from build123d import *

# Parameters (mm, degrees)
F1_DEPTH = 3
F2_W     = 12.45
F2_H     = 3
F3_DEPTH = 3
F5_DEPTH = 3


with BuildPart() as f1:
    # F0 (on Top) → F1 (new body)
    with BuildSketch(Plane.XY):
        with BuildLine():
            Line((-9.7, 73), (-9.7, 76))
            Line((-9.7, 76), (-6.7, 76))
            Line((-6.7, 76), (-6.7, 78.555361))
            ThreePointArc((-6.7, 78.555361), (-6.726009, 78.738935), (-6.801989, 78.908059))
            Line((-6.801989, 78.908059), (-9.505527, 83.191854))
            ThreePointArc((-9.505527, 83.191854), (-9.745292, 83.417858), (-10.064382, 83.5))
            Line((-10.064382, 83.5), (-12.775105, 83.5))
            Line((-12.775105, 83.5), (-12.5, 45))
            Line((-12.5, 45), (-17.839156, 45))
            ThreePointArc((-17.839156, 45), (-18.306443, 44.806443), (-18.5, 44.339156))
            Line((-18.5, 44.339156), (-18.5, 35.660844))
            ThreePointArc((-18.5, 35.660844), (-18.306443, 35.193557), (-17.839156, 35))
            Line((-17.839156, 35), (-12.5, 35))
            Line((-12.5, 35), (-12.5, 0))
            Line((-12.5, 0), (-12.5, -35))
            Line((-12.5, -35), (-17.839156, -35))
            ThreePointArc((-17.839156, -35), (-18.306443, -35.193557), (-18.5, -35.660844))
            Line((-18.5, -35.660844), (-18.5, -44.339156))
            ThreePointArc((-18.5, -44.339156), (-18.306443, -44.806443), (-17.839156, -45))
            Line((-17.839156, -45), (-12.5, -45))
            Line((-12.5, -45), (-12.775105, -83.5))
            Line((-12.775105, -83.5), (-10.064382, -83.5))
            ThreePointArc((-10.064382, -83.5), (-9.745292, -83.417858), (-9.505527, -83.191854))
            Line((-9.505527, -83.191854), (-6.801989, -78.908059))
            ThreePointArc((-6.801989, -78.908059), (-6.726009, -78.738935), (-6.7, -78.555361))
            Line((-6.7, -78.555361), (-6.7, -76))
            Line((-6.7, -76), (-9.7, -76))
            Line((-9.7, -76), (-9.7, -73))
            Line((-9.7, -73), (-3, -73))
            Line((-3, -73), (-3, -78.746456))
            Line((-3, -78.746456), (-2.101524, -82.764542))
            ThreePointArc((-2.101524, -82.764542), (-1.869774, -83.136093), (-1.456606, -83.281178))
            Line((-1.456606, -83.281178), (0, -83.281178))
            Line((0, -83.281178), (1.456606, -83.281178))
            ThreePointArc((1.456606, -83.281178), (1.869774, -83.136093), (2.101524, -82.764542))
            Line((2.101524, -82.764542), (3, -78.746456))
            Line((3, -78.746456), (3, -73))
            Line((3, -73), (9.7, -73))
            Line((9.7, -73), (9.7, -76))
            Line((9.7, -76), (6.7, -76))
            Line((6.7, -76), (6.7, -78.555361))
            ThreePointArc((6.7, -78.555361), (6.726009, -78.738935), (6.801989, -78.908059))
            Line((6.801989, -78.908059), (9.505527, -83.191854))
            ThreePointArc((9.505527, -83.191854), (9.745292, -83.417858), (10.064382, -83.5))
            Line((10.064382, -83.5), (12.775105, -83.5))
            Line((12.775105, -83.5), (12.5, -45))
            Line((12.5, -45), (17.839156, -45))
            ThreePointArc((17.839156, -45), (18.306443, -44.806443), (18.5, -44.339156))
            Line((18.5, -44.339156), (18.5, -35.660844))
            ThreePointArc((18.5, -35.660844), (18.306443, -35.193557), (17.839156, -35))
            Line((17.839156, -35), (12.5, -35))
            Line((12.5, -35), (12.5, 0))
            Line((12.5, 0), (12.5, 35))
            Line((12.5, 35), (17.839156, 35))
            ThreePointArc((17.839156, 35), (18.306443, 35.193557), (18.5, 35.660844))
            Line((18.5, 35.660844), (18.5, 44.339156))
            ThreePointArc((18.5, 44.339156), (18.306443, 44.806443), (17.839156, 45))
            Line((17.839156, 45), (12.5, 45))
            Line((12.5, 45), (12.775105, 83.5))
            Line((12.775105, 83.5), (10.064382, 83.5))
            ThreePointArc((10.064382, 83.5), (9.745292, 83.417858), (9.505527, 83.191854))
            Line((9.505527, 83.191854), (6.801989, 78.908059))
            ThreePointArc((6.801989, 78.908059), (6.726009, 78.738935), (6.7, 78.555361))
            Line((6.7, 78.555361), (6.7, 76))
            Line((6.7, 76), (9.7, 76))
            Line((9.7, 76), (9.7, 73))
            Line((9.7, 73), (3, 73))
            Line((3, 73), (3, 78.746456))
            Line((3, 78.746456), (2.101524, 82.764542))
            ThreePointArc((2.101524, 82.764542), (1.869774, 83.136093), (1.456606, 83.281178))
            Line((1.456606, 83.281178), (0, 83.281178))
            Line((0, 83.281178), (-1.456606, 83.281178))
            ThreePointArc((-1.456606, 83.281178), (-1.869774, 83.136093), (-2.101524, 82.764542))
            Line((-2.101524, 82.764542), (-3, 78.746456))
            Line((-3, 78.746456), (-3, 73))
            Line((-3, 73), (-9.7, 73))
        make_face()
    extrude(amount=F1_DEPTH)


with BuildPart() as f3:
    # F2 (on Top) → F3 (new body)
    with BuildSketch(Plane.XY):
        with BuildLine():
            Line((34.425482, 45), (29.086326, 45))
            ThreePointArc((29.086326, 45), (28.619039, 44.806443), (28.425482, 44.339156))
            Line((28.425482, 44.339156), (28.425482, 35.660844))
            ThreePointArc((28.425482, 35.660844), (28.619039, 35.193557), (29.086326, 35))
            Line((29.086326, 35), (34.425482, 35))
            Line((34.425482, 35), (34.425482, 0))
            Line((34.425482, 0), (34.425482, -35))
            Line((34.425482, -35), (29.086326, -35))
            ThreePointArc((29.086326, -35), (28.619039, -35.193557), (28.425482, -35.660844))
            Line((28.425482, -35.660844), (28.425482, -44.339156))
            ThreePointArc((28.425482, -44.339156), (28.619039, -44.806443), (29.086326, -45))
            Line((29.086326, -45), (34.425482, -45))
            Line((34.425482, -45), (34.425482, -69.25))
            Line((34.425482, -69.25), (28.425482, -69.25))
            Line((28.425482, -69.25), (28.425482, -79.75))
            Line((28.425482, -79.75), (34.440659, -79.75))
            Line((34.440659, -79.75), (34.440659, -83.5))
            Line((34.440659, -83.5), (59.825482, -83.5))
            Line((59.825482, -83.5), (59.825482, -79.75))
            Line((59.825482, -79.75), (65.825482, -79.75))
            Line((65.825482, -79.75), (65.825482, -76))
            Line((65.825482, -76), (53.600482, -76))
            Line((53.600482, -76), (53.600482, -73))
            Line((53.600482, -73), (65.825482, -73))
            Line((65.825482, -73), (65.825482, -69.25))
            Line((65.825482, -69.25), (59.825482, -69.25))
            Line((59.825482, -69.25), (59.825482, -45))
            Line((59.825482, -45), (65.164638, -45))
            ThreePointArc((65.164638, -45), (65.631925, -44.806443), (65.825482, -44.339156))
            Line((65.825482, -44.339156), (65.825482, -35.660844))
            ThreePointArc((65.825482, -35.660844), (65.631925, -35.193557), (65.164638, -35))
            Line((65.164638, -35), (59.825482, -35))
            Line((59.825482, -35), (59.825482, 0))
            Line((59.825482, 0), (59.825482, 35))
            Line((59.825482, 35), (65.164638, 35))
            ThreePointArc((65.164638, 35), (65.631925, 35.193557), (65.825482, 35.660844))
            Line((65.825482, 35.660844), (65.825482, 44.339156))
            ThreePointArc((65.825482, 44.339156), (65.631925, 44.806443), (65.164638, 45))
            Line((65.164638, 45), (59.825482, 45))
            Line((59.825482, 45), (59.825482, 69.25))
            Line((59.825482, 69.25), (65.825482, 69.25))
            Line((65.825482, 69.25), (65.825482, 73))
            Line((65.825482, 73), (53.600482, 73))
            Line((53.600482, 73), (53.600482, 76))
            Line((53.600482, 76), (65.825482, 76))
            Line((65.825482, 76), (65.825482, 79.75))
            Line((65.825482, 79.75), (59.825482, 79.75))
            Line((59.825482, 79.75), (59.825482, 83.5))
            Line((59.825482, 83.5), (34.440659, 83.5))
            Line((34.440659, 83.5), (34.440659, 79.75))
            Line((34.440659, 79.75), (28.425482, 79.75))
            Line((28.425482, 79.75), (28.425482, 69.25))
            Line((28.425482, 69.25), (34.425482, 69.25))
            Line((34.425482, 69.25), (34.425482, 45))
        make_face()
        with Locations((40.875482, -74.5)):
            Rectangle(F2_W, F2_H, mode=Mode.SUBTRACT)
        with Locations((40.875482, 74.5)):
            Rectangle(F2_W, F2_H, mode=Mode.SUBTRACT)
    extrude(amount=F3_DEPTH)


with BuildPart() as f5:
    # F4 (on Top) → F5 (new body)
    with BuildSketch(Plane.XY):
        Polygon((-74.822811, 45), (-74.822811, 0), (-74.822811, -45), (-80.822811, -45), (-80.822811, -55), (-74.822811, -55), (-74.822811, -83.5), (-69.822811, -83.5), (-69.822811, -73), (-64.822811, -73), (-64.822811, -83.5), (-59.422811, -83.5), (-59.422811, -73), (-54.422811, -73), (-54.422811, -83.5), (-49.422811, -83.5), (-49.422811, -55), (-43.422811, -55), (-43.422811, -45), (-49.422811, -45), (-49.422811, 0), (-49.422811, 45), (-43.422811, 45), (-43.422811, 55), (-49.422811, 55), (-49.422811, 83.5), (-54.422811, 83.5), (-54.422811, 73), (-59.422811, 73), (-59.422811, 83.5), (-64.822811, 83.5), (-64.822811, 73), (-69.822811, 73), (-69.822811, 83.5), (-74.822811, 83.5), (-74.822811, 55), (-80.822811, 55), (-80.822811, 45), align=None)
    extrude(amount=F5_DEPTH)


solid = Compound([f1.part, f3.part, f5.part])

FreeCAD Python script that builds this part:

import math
import FreeCAD as App
import Part
import Sketcher

V = App.Vector


def add_polygon(sketch, points):
    """Adds a closed chain of lines whose ends are joined by coincident constraints."""
    first, n = sketch.GeometryCount, len(points)
    for a, b in zip(points, points[1:] + points[:1]):
        sketch.addGeometry(Part.LineSegment(App.Vector(*a, 0), App.Vector(*b, 0)), False)
    for i in range(n):
        sketch.addConstraint(Sketcher.Constraint("Coincident", first + i, 2, first + (i + 1) % n, 1))

doc = App.newDocument("Part")
body = doc.addObject("PartDesign::Body", "Body")

sketch1 = body.newObject("Sketcher::SketchObject", "Sketch")
sketch1.AttachmentSupport = (doc.getObject("XY_Plane"), [""])
sketch1.MapMode = "FlatFace"
sketch1.addGeometry(Part.LineSegment(V(-9.7, 73, 0), V(-9.7, 76, 0)), False)
sketch1.addGeometry(Part.LineSegment(V(-9.7, 76, 0), V(-6.7, 76, 0)), False)
sketch1.addGeometry(Part.LineSegment(V(-6.7, 76, 0), V(-6.7, 78.56, 0)), False)
sketch1.addGeometry(Part.ArcOfCircle(Part.Circle(V(-7.36, 78.56, 0), V(0, 0, 1), 0.66), math.radians(0), math.radians(32)), False)
sketch1.addGeometry(Part.LineSegment(V(-6.8, 78.91, 0), V(-9.51, 83.19, 0)), False)
sketch1.addGeometry(Part.ArcOfCircle(Part.Circle(V(-10.06, 82.84, 0), V(0, 0, 1), 0.66), math.radians(32), math.radians(90)), False)
sketch1.addGeometry(Part.LineSegment(V(-10.06, 83.5, 0), V(-12.78, 83.5, 0)), False)
sketch1.addGeometry(Part.LineSegment(V(-12.78, 83.5, 0), V(-12.5, 45, 0)), False)
sketch1.addGeometry(Part.LineSegment(V(-12.5, 45, 0), V(-17.84, 45, 0)), False)
sketch1.addGeometry(Part.ArcOfCircle(Part.Circle(V(-17.84, 44.34, 0), V(0, 0, 1), 0.66), math.radians(90), math.radians(180)), False)
sketch1.addGeometry(Part.LineSegment(V(-18.5, 44.34, 0), V(-18.5, 35.66, 0)), False)
sketch1.addGeometry(Part.ArcOfCircle(Part.Circle(V(-17.84, 35.66, 0), V(0, 0, 1), 0.66), math.radians(-180), math.radians(-90)), False)
sketch1.addGeometry(Part.LineSegment(V(-17.84, 35, 0), V(-12.5, 35, 0)), False)
sketch1.addGeometry(Part.LineSegment(V(-12.5, 35, 0), V(-12.5, -35, 0)), False)
sketch1.addGeometry(Part.LineSegment(V(-12.5, -35, 0), V(-17.84, -35, 0)), False)
sketch1.addGeometry(Part.ArcOfCircle(Part.Circle(V(-17.84, -35.66, 0), V(0, 0, 1), 0.66), math.radians(90), math.radians(180)), False)
sketch1.addGeometry(Part.LineSegment(V(-18.5, -35.66, 0), V(-18.5, -44.34, 0)), False)
sketch1.addGeometry(Part.ArcOfCircle(Part.Circle(V(-17.84, -44.34, 0), V(0, 0, 1), 0.66), math.radians(-180), math.radians(-90)), False)
sketch1.addGeometry(Part.LineSegment(V(-17.84, -45, 0), V(-12.5, -45, 0)), False)
sketch1.addGeometry(Part.LineSegment(V(-12.5, -45, 0), V(-12.78, -83.5, 0)), False)
sketch1.addGeometry(Part.LineSegment(V(-12.78, -83.5, 0), V(-10.06, -83.5, 0)), False)
sketch1.addGeometry(Part.ArcOfCircle(Part.Circle(V(-10.06, -82.84, 0), V(0, 0, 1), 0.66), math.radians(-90), math.radians(-32)), False)
sketch1.addGeometry(Part.LineSegment(V(-9.51, -83.19, 0), V(-6.8, -78.91, 0)), False)
sketch1.addGeometry(Part.ArcOfCircle(Part.Circle(V(-7.36, -78.56, 0), V(0, 0, 1), 0.66), math.radians(-32), math.radians(0)), False)
sketch1.addGeometry(Part.LineSegment(V(-6.7, -78.56, 0), V(-6.7, -76, 0)), False)
sketch1.addGeometry(Part.LineSegment(V(-6.7, -76, 0), V(-9.7, -76, 0)), False)
sketch1.addGeometry(Part.LineSegment(V(-9.7, -76, 0), V(-9.7, -73, 0)), False)
sketch1.addGeometry(Part.LineSegment(V(-9.7, -73, 0), V(-3, -73, 0)), False)
sketch1.addGeometry(Part.LineSegment(V(-3, -73, 0), V(-3, -78.75, 0)), False)
sketch1.addGeometry(Part.LineSegment(V(-3, -78.75, 0), V(-2.1, -82.76, 0)), False)
sketch1.addGeometry(Part.ArcOfCircle(Part.Circle(V(-1.46, -82.62, 0), V(0, 0, 1), 0.66), math.radians(-167), math.radians(-90)), False)
sketch1.addGeometry(Part.LineSegment(V(-1.46, -83.28, 0), V(1.46, -83.28, 0)), False)
sketch1.addGeometry(Part.ArcOfCircle(Part.Circle(V(1.46, -82.62, 0), V(0, 0, 1), 0.66), math.radians(-90), math.radians(-13)), False)
sketch1.addGeometry(Part.LineSegment(V(2.1, -82.76, 0), V(3, -78.75, 0)), False)
sketch1.addGeometry(Part.LineSegment(V(3, -78.75, 0), V(3, -73, 0)), False)
sketch1.addGeometry(Part.LineSegment(V(3, -73, 0), V(9.7, -73, 0)), False)
sketch1.addGeometry(Part.LineSegment(V(9.7, -73, 0), V(9.7, -76, 0)), False)
sketch1.addGeometry(Part.LineSegment(V(9.7, -76, 0), V(6.7, -76, 0)), False)
sketch1.addGeometry(Part.LineSegment(V(6.7, -76, 0), V(6.7, -78.56, 0)), False)
sketch1.addGeometry(Part.ArcOfCircle(Part.Circle(V(7.36, -78.56, 0), V(0, 0, 1), 0.66), math.radians(180), math.radians(212)), False)
sketch1.addGeometry(Part.LineSegment(V(6.8, -78.91, 0), V(9.51, -83.19, 0)), False)
sketch1.addGeometry(Part.ArcOfCircle(Part.Circle(V(10.06, -82.84, 0), V(0, 0, 1), 0.66), math.radians(-148), math.radians(-90)), False)
sketch1.addGeometry(Part.LineSegment(V(10.06, -83.5, 0), V(12.78, -83.5, 0)), False)
sketch1.addGeometry(Part.LineSegment(V(12.78, -83.5, 0), V(12.5, -45, 0)), False)
sketch1.addGeometry(Part.LineSegment(V(12.5, -45, 0), V(17.84, -45, 0)), False)
sketch1.addGeometry(Part.ArcOfCircle(Part.Circle(V(17.84, -44.34, 0), V(0, 0, 1), 0.66), math.radians(-90), math.radians(0)), False)
sketch1.addGeometry(Part.LineSegment(V(18.5, -44.34, 0), V(18.5, -35.66, 0)), False)
sketch1.addGeometry(Part.ArcOfCircle(Part.Circle(V(17.84, -35.66, 0), V(0, 0, 1), 0.66), math.radians(0), math.radians(90)), False)
sketch1.addGeometry(Part.LineSegment(V(17.84, -35, 0), V(12.5, -35, 0)), False)
sketch1.addGeometry(Part.LineSegment(V(12.5, -35, 0), V(12.5, 35, 0)), False)
sketch1.addGeometry(Part.LineSegment(V(12.5, 35, 0), V(17.84, 35, 0)), False)
sketch1.addGeometry(Part.ArcOfCircle(Part.Circle(V(17.84, 35.66, 0), V(0, 0, 1), 0.66), math.radians(-90), math.radians(0)), False)
sketch1.addGeometry(Part.LineSegment(V(18.5, 35.66, 0), V(18.5, 44.34, 0)), False)
sketch1.addGeometry(Part.ArcOfCircle(Part.Circle(V(17.84, 44.34, 0), V(0, 0, 1), 0.66), math.radians(0), math.radians(90)), False)
sketch1.addGeometry(Part.LineSegment(V(17.84, 45, 0), V(12.5, 45, 0)), False)
sketch1.addGeometry(Part.LineSegment(V(12.5, 45, 0), V(12.78, 83.5, 0)), False)
sketch1.addGeometry(Part.LineSegment(V(12.78, 83.5, 0), V(10.06, 83.5, 0)), False)
sketch1.addGeometry(Part.ArcOfCircle(Part.Circle(V(10.06, 82.84, 0), V(0, 0, 1), 0.66), math.radians(90), math.radians(148)), False)
sketch1.addGeometry(Part.LineSegment(V(9.51, 83.19, 0), V(6.8, 78.91, 0)), False)
sketch1.addGeometry(Part.ArcOfCircle(Part.Circle(V(7.36, 78.56, 0), V(0, 0, 1), 0.66), math.radians(148), math.radians(180)), False)
sketch1.addGeometry(Part.LineSegment(V(6.7, 78.56, 0), V(6.7, 76, 0)), False)
sketch1.addGeometry(Part.LineSegment(V(6.7, 76, 0), V(9.7, 76, 0)), False)
sketch1.addGeometry(Part.LineSegment(V(9.7, 76, 0), V(9.7, 73, 0)), False)
sketch1.addGeometry(Part.LineSegment(V(9.7, 73, 0), V(3, 73, 0)), False)
sketch1.addGeometry(Part.LineSegment(V(3, 73, 0), V(3, 78.75, 0)), False)
sketch1.addGeometry(Part.LineSegment(V(3, 78.75, 0), V(2.1, 82.76, 0)), False)
sketch1.addGeometry(Part.ArcOfCircle(Part.Circle(V(1.46, 82.62, 0), V(0, 0, 1), 0.66), math.radians(13), math.radians(90)), False)
sketch1.addGeometry(Part.LineSegment(V(1.46, 83.28, 0), V(-1.46, 83.28, 0)), False)
sketch1.addGeometry(Part.ArcOfCircle(Part.Circle(V(-1.46, 82.62, 0), V(0, 0, 1), 0.66), math.radians(90), math.radians(167)), False)
sketch1.addGeometry(Part.LineSegment(V(-2.1, 82.76, 0), V(-3, 78.75, 0)), False)
sketch1.addGeometry(Part.LineSegment(V(-3, 78.75, 0), V(-3, 73, 0)), False)
sketch1.addGeometry(Part.LineSegment(V(-3, 73, 0), V(-9.7, 73, 0)), False)
sketch1.addConstraint(Sketcher.Constraint("Coincident", 0, 2, 1, 1))
sketch1.addConstraint(Sketcher.Constraint("Coincident", 1, 2, 2, 1))
sketch1.addConstraint(Sketcher.Constraint("Tangent", 2, 2, 3, 1))
sketch1.addConstraint(Sketcher.Constraint("Tangent", 3, 2, 4, 1))
sketch1.addConstraint(Sketcher.Constraint("Tangent", 4, 2, 5, 1))
sketch1.addConstraint(Sketcher.Constraint("Tangent", 5, 2, 6, 1))
sketch1.addConstraint(Sketcher.Constraint("Coincident", 6, 2, 7, 1))
sketch1.addConstraint(Sketcher.Constraint("Coincident", 7, 2, 8, 1))
sketch1.addConstraint(Sketcher.Constraint("Tangent", 8, 2, 9, 1))
sketch1.addConstraint(Sketcher.Constraint("Tangent", 9, 2, 10, 1))
sketch1.addConstraint(Sketcher.Constraint("Tangent", 10, 2, 11, 1))
sketch1.addConstraint(Sketcher.Constraint("Tangent", 11, 2, 12, 1))
sketch1.addConstraint(Sketcher.Constraint("Coincident", 12, 2, 13, 1))
sketch1.addConstraint(Sketcher.Constraint("Coincident", 13, 2, 14, 1))
sketch1.addConstraint(Sketcher.Constraint("Tangent", 14, 2, 15, 1))
sketch1.addConstraint(Sketcher.Constraint("Tangent", 15, 2, 16, 1))
sketch1.addConstraint(Sketcher.Constraint("Tangent", 16, 2, 17, 1))
sketch1.addConstraint(Sketcher.Constraint("Tangent", 17, 2, 18, 1))
sketch1.addConstraint(Sketcher.Constraint("Coincident", 18, 2, 19, 1))
sketch1.addConstraint(Sketcher.Constraint("Coincident", 19, 2, 20, 1))
sketch1.addConstraint(Sketcher.Constraint("Tangent", 20, 2, 21, 1))
sketch1.addConstraint(Sketcher.Constraint("Tangent", 21, 2, 22, 1))
sketch1.addConstraint(Sketcher.Constraint("Tangent", 22, 2, 23, 1))
sketch1.addConstraint(Sketcher.Constraint("Tangent", 23, 2, 24, 1))
sketch1.addConstraint(Sketcher.Constraint("Coincident", 24, 2, 25, 1))
sketch1.addConstraint(Sketcher.Constraint("Coincident", 25, 2, 26, 1))
sketch1.addConstraint(Sketcher.Constraint("Coincident", 26, 2, 27, 1))
sketch1.addConstraint(Sketcher.Constraint("Coincident", 27, 2, 28, 1))
sketch1.addConstraint(Sketcher.Constraint("Coincident", 28, 2, 29, 1))
sketch1.addConstraint(Sketcher.Constraint("Tangent", 29, 2, 30, 1))
sketch1.addConstraint(Sketcher.Constraint("Tangent", 30, 2, 31, 1))
sketch1.addConstraint(Sketcher.Constraint("Tangent", 31, 2, 32, 1))
sketch1.addConstraint(Sketcher.Constraint("Tangent", 32, 2, 33, 1))
sketch1.addConstraint(Sketcher.Constraint("Coincident", 33, 2, 34, 1))
sketch1.addConstraint(Sketcher.Constraint("Coincident", 34, 2, 35, 1))
sketch1.addConstraint(Sketcher.Constraint("Coincident", 35, 2, 36, 1))
sketch1.addConstraint(Sketcher.Constraint("Coincident", 36, 2, 37, 1))
sketch1.addConstraint(Sketcher.Constraint("Coincident", 37, 2, 38, 1))
sketch1.addConstraint(Sketcher.Constraint("Tangent", 38, 2, 39, 1))
sketch1.addConstraint(Sketcher.Constraint("Tangent", 39, 2, 40, 1))
sketch1.addConstraint(Sketcher.Constraint("Tangent", 40, 2, 41, 1))
sketch1.addConstraint(Sketcher.Constraint("Tangent", 41, 2, 42, 1))
sketch1.addConstraint(Sketcher.Constraint("Coincident", 42, 2, 43, 1))
sketch1.addConstraint(Sketcher.Constraint("Coincident", 43, 2, 44, 1))
sketch1.addConstraint(Sketcher.Constraint("Tangent", 44, 2, 45, 1))
sketch1.addConstraint(Sketcher.Constraint("Tangent", 45, 2, 46, 1))
sketch1.addConstraint(Sketcher.Constraint("Tangent", 46, 2, 47, 1))
sketch1.addConstraint(Sketcher.Constraint("Tangent", 47, 2, 48, 1))
sketch1.addConstraint(Sketcher.Constraint("Coincident", 48, 2, 49, 1))
sketch1.addConstraint(Sketcher.Constraint("Coincident", 49, 2, 50, 1))
sketch1.addConstraint(Sketcher.Constraint("Tangent", 50, 2, 51, 1))
sketch1.addConstraint(Sketcher.Constraint("Tangent", 51, 2, 52, 1))
sketch1.addConstraint(Sketcher.Constraint("Tangent", 52, 2, 53, 1))
sketch1.addConstraint(Sketcher.Constraint("Tangent", 53, 2, 54, 1))
sketch1.addConstraint(Sketcher.Constraint("Coincident", 54, 2, 55, 1))
sketch1.addConstraint(Sketcher.Constraint("Coincident", 55, 2, 56, 1))
sketch1.addConstraint(Sketcher.Constraint("Tangent", 56, 2, 57, 1))
sketch1.addConstraint(Sketcher.Constraint("Tangent", 57, 2, 58, 1))
sketch1.addConstraint(Sketcher.Constraint("Tangent", 58, 2, 59, 1))
sketch1.addConstraint(Sketcher.Constraint("Tangent", 59, 2, 60, 1))
sketch1.addConstraint(Sketcher.Constraint("Coincident", 60, 2, 61, 1))
sketch1.addConstraint(Sketcher.Constraint("Coincident", 61, 2, 62, 1))
sketch1.addConstraint(Sketcher.Constraint("Coincident", 62, 2, 63, 1))
sketch1.addConstraint(Sketcher.Constraint("Coincident", 63, 2, 64, 1))
sketch1.addConstraint(Sketcher.Constraint("Coincident", 64, 2, 65, 1))
sketch1.addConstraint(Sketcher.Constraint("Tangent", 65, 2, 66, 1))
sketch1.addConstraint(Sketcher.Constraint("Tangent", 66, 2, 67, 1))
sketch1.addConstraint(Sketcher.Constraint("Tangent", 67, 2, 68, 1))
sketch1.addConstraint(Sketcher.Constraint("Tangent", 68, 2, 69, 1))
sketch1.addConstraint(Sketcher.Constraint("Coincident", 69, 2, 70, 1))
sketch1.addConstraint(Sketcher.Constraint("Coincident", 70, 2, 71, 1))
sketch1.addConstraint(Sketcher.Constraint("Coincident", 71, 2, 0, 1))
sketch1.addConstraint(Sketcher.Constraint("Vertical", 0))
sketch1.addConstraint(Sketcher.Constraint("Horizontal", 1))
sketch1.addConstraint(Sketcher.Constraint("Vertical", 2))
sketch1.addConstraint(Sketcher.Constraint("Horizontal", 6))
sketch1.addConstraint(Sketcher.Constraint("Horizontal", 8))
sketch1.addConstraint(Sketcher.Constraint("Vertical", 10))
sketch1.addConstraint(Sketcher.Constraint("Horizontal", 12))
sketch1.addConstraint(Sketcher.Constraint("Vertical", 13))
sketch1.addConstraint(Sketcher.Constraint("Horizontal", 14))
sketch1.addConstraint(Sketcher.Constraint("Vertical", 16))
sketch1.addConstraint(Sketcher.Constraint("Horizontal", 18))
sketch1.addConstraint(Sketcher.Constraint("Horizontal", 20))
sketch1.addConstraint(Sketcher.Constraint("Vertical", 24))
sketch1.addConstraint(Sketcher.Constraint("Horizontal", 25))
sketch1.addConstraint(Sketcher.Constraint("Vertical", 26))
sketch1.addConstraint(Sketcher.Constraint("Horizontal", 27))
sketch1.addConstraint(Sketcher.Constraint("Vertical", 28))
sketch1.addConstraint(Sketcher.Constraint("Horizontal", 31))
sketch1.addConstraint(Sketcher.Constraint("Vertical", 34))
sketch1.addConstraint(Sketcher.Constraint("Horizontal", 35))
sketch1.addConstraint(Sketcher.Constraint("Vertical", 36))
sketch1.addConstraint(Sketcher.Constraint("Horizontal", 37))
sketch1.addConstraint(Sketcher.Constraint("Vertical", 38))
sketch1.addConstraint(Sketcher.Constraint("Horizontal", 42))
sketch1.addConstraint(Sketcher.Constraint("Horizontal", 44))
sketch1.addConstraint(Sketcher.Constraint("Vertical", 46))
sketch1.addConstraint(Sketcher.Constraint("Horizontal", 48))
sketch1.addConstraint(Sketcher.Constraint("Vertical", 49))
sketch1.addConstraint(Sketcher.Constraint("Horizontal", 50))
sketch1.addConstraint(Sketcher.Constraint("Vertical", 52))
sketch1.addConstraint(Sketcher.Constraint("Horizontal", 54))
sketch1.addConstraint(Sketcher.Constraint("Horizontal", 56))
sketch1.addConstraint(Sketcher.Constraint("Vertical", 60))
sketch1.addConstraint(Sketcher.Constraint("Horizontal", 61))
sketch1.addConstraint(Sketcher.Constraint("Vertical", 62))
sketch1.addConstraint(Sketcher.Constraint("Horizontal", 63))
sketch1.addConstraint(Sketcher.Constraint("Vertical", 64))
sketch1.addConstraint(Sketcher.Constraint("Horizontal", 67))
sketch1.addConstraint(Sketcher.Constraint("Vertical", 70))
sketch1.addConstraint(Sketcher.Constraint("Horizontal", 71))
sketch1.addConstraint(Sketcher.Constraint("Equal", 5, 9))
sketch1.addConstraint(Sketcher.Constraint("Equal", 9, 11))
sketch1.addConstraint(Sketcher.Constraint("Equal", 11, 15))
sketch1.addConstraint(Sketcher.Constraint("Equal", 15, 17))
sketch1.addConstraint(Sketcher.Constraint("Equal", 17, 21))
sketch1.addConstraint(Sketcher.Constraint("Equal", 3, 23))
sketch1.addConstraint(Sketcher.Constraint("Equal", 23, 30))
sketch1.addConstraint(Sketcher.Constraint("Equal", 30, 32))
sketch1.addConstraint(Sketcher.Constraint("Equal", 32, 39))
sketch1.addConstraint(Sketcher.Constraint("Equal", 21, 41))
sketch1.addConstraint(Sketcher.Constraint("Equal", 41, 45))
sketch1.addConstraint(Sketcher.Constraint("Equal", 45, 47))
sketch1.addConstraint(Sketcher.Constraint("Equal", 47, 51))
sketch1.addConstraint(Sketcher.Constraint("Equal", 51, 53))
sketch1.addConstraint(Sketcher.Constraint("Equal", 53, 57))
sketch1.addConstraint(Sketcher.Constraint("Equal", 39, 59))
sketch1.addConstraint(Sketcher.Constraint("Equal", 59, 66))
sketch1.addConstraint(Sketcher.Constraint("Equal", 66, 68))
sketch1.addConstraint(Sketcher.Constraint("Symmetric", 3, 3, 39, 3, -1, 1))
sketch1.addConstraint(Sketcher.Constraint("Symmetric", 5, 3, 41, 3, -1, 1))
sketch1.addConstraint(Sketcher.Constraint("Symmetric", 9, 3, 45, 3, -1, 1))
sketch1.addConstraint(Sketcher.Constraint("Symmetric", 15, 3, 51, 3, -1, 1))
sketch1.addConstraint(Sketcher.Constraint("Symmetric", 21, 3, 57, 3, -1, 1))
sketch1.addConstraint(Sketcher.Constraint("Symmetric", 23, 3, 59, 3, -1, 1))
sketch1.addConstraint(Sketcher.Constraint("Symmetric", 30, 3, 66, 3, -1, 1))
sketch1.addConstraint(Sketcher.Constraint("Symmetric", 0, 2, 36, 2, -1, 1))
sketch1.addConstraint(Sketcher.Constraint("Symmetric", 12, 2, 48, 2, -1, 1))
sketch1.addConstraint(Sketcher.Constraint("Symmetric", 18, 2, 54, 2, -1, 1))
sketch1.addConstraint(Sketcher.Constraint("Symmetric", 25, 2, 61, 2, -1, 1))
sketch1.addConstraint(Sketcher.Constraint("Symmetric", 27, 2, 63, 2, -1, 1))
sketch1.addConstraint(Sketcher.Constraint("Symmetric", 32, 2, 68, 2, -1, 1))
sketch1.addConstraint(Sketcher.Constraint("Symmetric", 34, 2, 70, 2, -1, 1))
sketch1.addConstraint(Sketcher.Constraint("Symmetric", 23, 3, 39, 3, -2))
sketch1.addConstraint(Sketcher.Constraint("Symmetric", 21, 3, 41, 3, -2))
sketch1.addConstraint(Sketcher.Constraint("Symmetric", 17, 3, 45, 3, -2))
sketch1.addConstraint(Sketcher.Constraint("Symmetric", 29, 2, 32, 2, -2))
sketch1.addConstraint(Sketcher.Constraint("Symmetric", 27, 2, 34, 2, -2))
sketch1.addConstraint(Sketcher.Constraint("Symmetric", 25, 2, 36, 2, -2))
sketch1.addConstraint(Sketcher.Constraint("Parallel", 7, 43))
sketch1.addConstraint(Sketcher.Constraint("Parallel", 19, 55))
sketch1.addConstraint(Sketcher.Constraint("Parallel", 29, 65))
sketch1.addConstraint(Sketcher.Constraint("Horizontal", 15, 3, 47, 3))
sketch1.addConstraint(Sketcher.Constraint("Vertical", 7, 2, 12, 2))
sketch1.addConstraint(Sketcher.Constraint("Vertical", 13, 2, 18, 2))
sketch1.addConstraint(Sketcher.Constraint("Vertical", 6, 2, 19, 2))
sketch1.addConstraint(Sketcher.Constraint("Vertical", 43, 2, 48, 2))
sketch1.addConstraint(Sketcher.Constraint("Equal", 61, 0))
sketch1.addConstraint(Sketcher.Constraint("DistanceX", 1, 1, 1, 2, 3.0))
sketch1.addConstraint(Sketcher.Constraint("DistanceY", 13, 2, 13, 1, 70.0))
sketch1.addConstraint(Sketcher.Constraint("DistanceX", 27, 1, 27, 2, 6.7))
sketch1.addConstraint(Sketcher.Constraint("DistanceY", -1, 1, 0, 2, 76.0))
sketch1.addConstraint(Sketcher.Constraint("DistanceY", -1, 1, 7, 2, 45.0))
sketch1.addConstraint(Sketcher.Constraint("DistanceX", 27, 2, -1, 1, 3.0))
sketch1.addConstraint(Sketcher.Constraint("DistanceY", -1, 1, 5, 2, 83.5))
sketch1.addConstraint(Sketcher.Constraint("DistanceX", 7, 2, -1, 1, 12.5))
sketch1.addConstraint(Sketcher.Constraint("DistanceX", 9, 2, -1, 1, 18.5))
sketch1.addConstraint(Sketcher.Constraint("Radius", 3, 0.660842))
sketch1.addConstraint(Sketcher.Constraint("Radius", 5, 0.660846))
sketch1.addConstraint(Sketcher.Constraint("DistanceY", 2, 1, 2, 2, 2.555361))
sketch1.addConstraint(Sketcher.Constraint("Distance", 4, 5.065572))
sketch1.addConstraint(Sketcher.Constraint("DistanceX", 6, 2, 6, 1, 2.710723))
sketch1.addConstraint(Sketcher.Constraint("DistanceX", 31, 1, 31, 2, 2.913212))
sketch1.addConstraint(Sketcher.Constraint("DistanceY", 28, 2, 28, 1, 5.746456))
sketch1.addConstraint(Sketcher.Constraint("DistanceY", 32, 2, -1, 1, 82.764542))
pad1 = body.newObject("PartDesign::Pad", "Pad")
pad1.Profile = sketch1
pad1.Length = 3
body2 = doc.addObject("PartDesign::Body", "Body001")

sketch2 = body2.newObject("Sketcher::SketchObject", "Sketch001")
sketch2.AttachmentSupport = (doc.getObject("XY_Plane001"), [""])
sketch2.MapMode = "FlatFace"
sketch2.addGeometry(Part.LineSegment(V(34.4, 45, 0), V(29.1, 45, 0)), False)
sketch2.addGeometry(Part.ArcOfCircle(Part.Circle(V(29.1, 44.3, 0), V(0, 0, 1), 0.7), math.radians(90), math.radians(180)), False)
sketch2.addGeometry(Part.LineSegment(V(28.4, 44.3, 0), V(28.4, 35.7, 0)), False)
sketch2.addGeometry(Part.ArcOfCircle(Part.Circle(V(29.1, 35.7, 0), V(0, 0, 1), 0.7), math.radians(-180), math.radians(-90)), False)
sketch2.addGeometry(Part.LineSegment(V(29.1, 35, 0), V(34.4, 35, 0)), False)
sketch2.addGeometry(Part.LineSegment(V(34.4, 35, 0), V(34.4, -35, 0)), False)
sketch2.addGeometry(Part.LineSegment(V(34.4, -35, 0), V(29.1, -35, 0)), False)
sketch2.addGeometry(Part.ArcOfCircle(Part.Circle(V(29.1, -35.7, 0), V(0, 0, 1), 0.7), math.radians(90), math.radians(180)), False)
sketch2.addGeometry(Part.LineSegment(V(28.4, -35.7, 0), V(28.4, -44.3, 0)), False)
sketch2.addGeometry(Part.ArcOfCircle(Part.Circle(V(29.1, -44.3, 0), V(0, 0, 1), 0.7), math.radians(-180), math.radians(-90)), False)
sketch2.addGeometry(Part.LineSegment(V(29.1, -45, 0), V(34.4, -45, 0)), False)
sketch2.addGeometry(Part.LineSegment(V(34.4, -45, 0), V(34.4, -69.2, 0)), False)
sketch2.addGeometry(Part.LineSegment(V(34.4, -69.2, 0), V(28.4, -69.2, 0)), False)
sketch2.addGeometry(Part.LineSegment(V(28.4, -69.2, 0), V(28.4, -79.8, 0)), False)
sketch2.addGeometry(Part.LineSegment(V(28.4, -79.8, 0), V(34.4, -79.8, 0)), False)
sketch2.addGeometry(Part.LineSegment(V(34.4, -79.8, 0), V(34.4, -83.5, 0)), False)
sketch2.addGeometry(Part.LineSegment(V(34.4, -83.5, 0), V(59.8, -83.5, 0)), False)
sketch2.addGeometry(Part.LineSegment(V(59.8, -83.5, 0), V(59.8, -79.8, 0)), False)
sketch2.addGeometry(Part.LineSegment(V(59.8, -79.8, 0), V(65.8, -79.8, 0)), False)
sketch2.addGeometry(Part.LineSegment(V(65.8, -79.8, 0), V(65.8, -76, 0)), False)
sketch2.addGeometry(Part.LineSegment(V(65.8, -76, 0), V(53.6, -76, 0)), False)
sketch2.addGeometry(Part.LineSegment(V(53.6, -76, 0), V(53.6, -73, 0)), False)
sketch2.addGeometry(Part.LineSegment(V(53.6, -73, 0), V(65.8, -73, 0)), False)
sketch2.addGeometry(Part.LineSegment(V(65.8, -73, 0), V(65.8, -69.2, 0)), False)
sketch2.addGeometry(Part.LineSegment(V(65.8, -69.2, 0), V(59.8, -69.2, 0)), False)
sketch2.addGeometry(Part.LineSegment(V(59.8, -69.2, 0), V(59.8, -45, 0)), False)
sketch2.addGeometry(Part.LineSegment(V(59.8, -45, 0), V(65.2, -45, 0)), False)
sketch2.addGeometry(Part.ArcOfCircle(Part.Circle(V(65.2, -44.3, 0), V(0, 0, 1), 0.7), math.radians(-90), math.radians(0)), False)
sketch2.addGeometry(Part.LineSegment(V(65.8, -44.3, 0), V(65.8, -35.7, 0)), False)
sketch2.addGeometry(Part.ArcOfCircle(Part.Circle(V(65.2, -35.7, 0), V(0, 0, 1), 0.7), math.radians(0), math.radians(90)), False)
sketch2.addGeometry(Part.LineSegment(V(65.2, -35, 0), V(59.8, -35, 0)), False)
sketch2.addGeometry(Part.LineSegment(V(59.8, -35, 0), V(59.8, 35, 0)), False)
sketch2.addGeometry(Part.LineSegment(V(59.8, 35, 0), V(65.2, 35, 0)), False)
sketch2.addGeometry(Part.ArcOfCircle(Part.Circle(V(65.2, 35.7, 0), V(0, 0, 1), 0.7), math.radians(-90), math.radians(0)), False)
sketch2.addGeometry(Part.LineSegment(V(65.8, 35.7, 0), V(65.8, 44.3, 0)), False)
sketch2.addGeometry(Part.ArcOfCircle(Part.Circle(V(65.2, 44.3, 0), V(0, 0, 1), 0.7), math.radians(0), math.radians(90)), False)
sketch2.addGeometry(Part.LineSegment(V(65.2, 45, 0), V(59.8, 45, 0)), False)
sketch2.addGeometry(Part.LineSegment(V(59.8, 45, 0), V(59.8, 69.2, 0)), False)
sketch2.addGeometry(Part.LineSegment(V(59.8, 69.2, 0), V(65.8, 69.2, 0)), False)
sketch2.addGeometry(Part.LineSegment(V(65.8, 69.2, 0), V(65.8, 73, 0)), False)
sketch2.addGeometry(Part.LineSegment(V(65.8, 73, 0), V(53.6, 73, 0)), False)
sketch2.addGeometry(Part.LineSegment(V(53.6, 73, 0), V(53.6, 76, 0)), False)
sketch2.addGeometry(Part.LineSegment(V(53.6, 76, 0), V(65.8, 76, 0)), False)
sketch2.addGeometry(Part.LineSegment(V(65.8, 76, 0), V(65.8, 79.8, 0)), False)
sketch2.addGeometry(Part.LineSegment(V(65.8, 79.8, 0), V(59.8, 79.8, 0)), False)
sketch2.addGeometry(Part.LineSegment(V(59.8, 79.8, 0), V(59.8, 83.5, 0)), False)
sketch2.addGeometry(Part.LineSegment(V(59.8, 83.5, 0), V(34.4, 83.5, 0)), False)
sketch2.addGeometry(Part.LineSegment(V(34.4, 83.5, 0), V(34.4, 79.8, 0)), False)
sketch2.addGeometry(Part.LineSegment(V(34.4, 79.8, 0), V(28.4, 79.8, 0)), False)
sketch2.addGeometry(Part.LineSegment(V(28.4, 79.8, 0), V(28.4, 69.2, 0)), False)
sketch2.addGeometry(Part.LineSegment(V(28.4, 69.2, 0), V(34.4, 69.2, 0)), False)
sketch2.addGeometry(Part.LineSegment(V(34.4, 69.2, 0), V(34.4, 45, 0)), False)
add_polygon(sketch2, [(47.1, -76), (34.7, -76), (34.7, -73), (47.1, -73)])
add_polygon(sketch2, [(47.1, 73), (34.7, 73), (34.7, 76), (47.1, 76)])
sketch2.addConstraint(Sketcher.Constraint("Tangent", 0, 2, 1, 1))
sketch2.addConstraint(Sketcher.Constraint("Tangent", 1, 2, 2, 1))
sketch2.addConstraint(Sketcher.Constraint("Tangent", 2, 2, 3, 1))
sketch2.addConstraint(Sketcher.Constraint("Tangent", 3, 2, 4, 1))
sketch2.addConstraint(Sketcher.Constraint("Coincident", 4, 2, 5, 1))
sketch2.addConstraint(Sketcher.Constraint("Coincident", 5, 2, 6, 1))
sketch2.addConstraint(Sketcher.Constraint("Tangent", 6, 2, 7, 1))
sketch2.addConstraint(Sketcher.Constraint("Tangent", 7, 2, 8, 1))
sketch2.addConstraint(Sketcher.Constraint("Tangent", 8, 2, 9, 1))
sketch2.addConstraint(Sketcher.Constraint("Tangent", 9, 2, 10, 1))
sketch2.addConstraint(Sketcher.Constraint("Coincident", 10, 2, 11, 1))
sketch2.addConstraint(Sketcher.Constraint("Coincident", 11, 2, 12, 1))
sketch2.addConstraint(Sketcher.Constraint("Coincident", 12, 2, 13, 1))
sketch2.addConstraint(Sketcher.Constraint("Coincident", 13, 2, 14, 1))
sketch2.addConstraint(Sketcher.Constraint("Coincident", 14, 2, 15, 1))
sketch2.addConstraint(Sketcher.Constraint("Coincident", 15, 2, 16, 1))
sketch2.addConstraint(Sketcher.Constraint("Coincident", 16, 2, 17, 1))
sketch2.addConstraint(Sketcher.Constraint("Coincident", 17, 2, 18, 1))
sketch2.addConstraint(Sketcher.Constraint("Coincident", 18, 2, 19, 1))
sketch2.addConstraint(Sketcher.Constraint("Coincident", 19, 2, 20, 1))
sketch2.addConstraint(Sketcher.Constraint("Coincident", 20, 2, 21, 1))
sketch2.addConstraint(Sketcher.Constraint("Coincident", 21, 2, 22, 1))
sketch2.addConstraint(Sketcher.Constraint("Coincident", 22, 2, 23, 1))
sketch2.addConstraint(Sketcher.Constraint("Coincident", 23, 2, 24, 1))
sketch2.addConstraint(Sketcher.Constraint("Coincident", 24, 2, 25, 1))
sketch2.addConstraint(Sketcher.Constraint("Coincident", 25, 2, 26, 1))
sketch2.addConstraint(Sketcher.Constraint("Tangent", 26, 2, 27, 1))
sketch2.addConstraint(Sketcher.Constraint("Tangent", 27, 2, 28, 1))
sketch2.addConstraint(Sketcher.Constraint("Tangent", 28, 2, 29, 1))
sketch2.addConstraint(Sketcher.Constraint("Tangent", 29, 2, 30, 1))
sketch2.addConstraint(Sketcher.Constraint("Coincident", 30, 2, 31, 1))
sketch2.addConstraint(Sketcher.Constraint("Coincident", 31, 2, 32, 1))
sketch2.addConstraint(Sketcher.Constraint("Tangent", 32, 2, 33, 1))
sketch2.addConstraint(Sketcher.Constraint("Tangent", 33, 2, 34, 1))
sketch2.addConstraint(Sketcher.Constraint("Tangent", 34, 2, 35, 1))
sketch2.addConstraint(Sketcher.Constraint("Tangent", 35, 2, 36, 1))
sketch2.addConstraint(Sketcher.Constraint("Coincident", 36, 2, 37, 1))
sketch2.addConstraint(Sketcher.Constraint("Coincident", 37, 2, 38, 1))
sketch2.addConstraint(Sketcher.Constraint("Coincident", 38, 2, 39, 1))
sketch2.addConstraint(Sketcher.Constraint("Coincident", 39, 2, 40, 1))
sketch2.addConstraint(Sketcher.Constraint("Coincident", 40, 2, 41, 1))
sketch2.addConstraint(Sketcher.Constraint("Coincident", 41, 2, 42, 1))
sketch2.addConstraint(Sketcher.Constraint("Coincident", 42, 2, 43, 1))
sketch2.addConstraint(Sketcher.Constraint("Coincident", 43, 2, 44, 1))
sketch2.addConstraint(Sketcher.Constraint("Coincident", 44, 2, 45, 1))
sketch2.addConstraint(Sketcher.Constraint("Coincident", 45, 2, 46, 1))
sketch2.addConstraint(Sketcher.Constraint("Coincident", 46, 2, 47, 1))
sketch2.addConstraint(Sketcher.Constraint("Coincident", 47, 2, 48, 1))
sketch2.addConstraint(Sketcher.Constraint("Coincident", 48, 2, 49, 1))
sketch2.addConstraint(Sketcher.Constraint("Coincident", 49, 2, 50, 1))
sketch2.addConstraint(Sketcher.Constraint("Coincident", 50, 2, 51, 1))
sketch2.addConstraint(Sketcher.Constraint("Coincident", 51, 2, 0, 1))
sketch2.addConstraint(Sketcher.Constraint("Horizontal", 0))
sketch2.addConstraint(Sketcher.Constraint("Vertical", 2))
sketch2.addConstraint(Sketcher.Constraint("Horizontal", 4))
sketch2.addConstraint(Sketcher.Constraint("Vertical", 5))
sketch2.addConstraint(Sketcher.Constraint("Horizontal", 6))
sketch2.addConstraint(Sketcher.Constraint("Vertical", 8))
sketch2.addConstraint(Sketcher.Constraint("Horizontal", 10))
sketch2.addConstraint(Sketcher.Constraint("Vertical", 11))
sketch2.addConstraint(Sketcher.Constraint("Horizontal", 12))
sketch2.addConstraint(Sketcher.Constraint("Vertical", 13))
sketch2.addConstraint(Sketcher.Constraint("Horizontal", 14))
sketch2.addConstraint(Sketcher.Constraint("Vertical", 15))
sketch2.addConstraint(Sketcher.Constraint("Horizontal", 16))
sketch2.addConstraint(Sketcher.Constraint("Vertical", 17))
sketch2.addConstraint(Sketcher.Constraint("Horizontal", 18))
sketch2.addConstraint(Sketcher.Constraint("Vertical", 19))
sketch2.addConstraint(Sketcher.Constraint("Horizontal", 20))
sketch2.addConstraint(Sketcher.Constraint("Vertical", 21))
sketch2.addConstraint(Sketcher.Constraint("Horizontal", 22))
sketch2.addConstraint(Sketcher.Constraint("Vertical", 23))
sketch2.addConstraint(Sketcher.Constraint("Horizontal", 24))
sketch2.addConstraint(Sketcher.Constraint("Vertical", 25))
sketch2.addConstraint(Sketcher.Constraint("Horizontal", 26))
sketch2.addConstraint(Sketcher.Constraint("Vertical", 28))
sketch2.addConstraint(Sketcher.Constraint("Horizontal", 30))
sketch2.addConstraint(Sketcher.Constraint("Vertical", 31))
sketch2.addConstraint(Sketcher.Constraint("Horizontal", 32))
sketch2.addConstraint(Sketcher.Constraint("Vertical", 34))
sketch2.addConstraint(Sketcher.Constraint("Horizontal", 36))
sketch2.addConstraint(Sketcher.Constraint("Vertical", 37))
sketch2.addConstraint(Sketcher.Constraint("Horizontal", 38))
sketch2.addConstraint(Sketcher.Constraint("Vertical", 39))
sketch2.addConstraint(Sketcher.Constraint("Horizontal", 40))
sketch2.addConstraint(Sketcher.Constraint("Vertical", 41))
sketch2.addConstraint(Sketcher.Constraint("Horizontal", 42))
sketch2.addConstraint(Sketcher.Constraint("Vertical", 43))
sketch2.addConstraint(Sketcher.Constraint("Horizontal", 44))
sketch2.addConstraint(Sketcher.Constraint("Vertical", 45))
sketch2.addConstraint(Sketcher.Constraint("Horizontal", 46))
sketch2.addConstraint(Sketcher.Constraint("Vertical", 47))
sketch2.addConstraint(Sketcher.Constraint("Horizontal", 48))
sketch2.addConstraint(Sketcher.Constraint("Vertical", 49))
sketch2.addConstraint(Sketcher.Constraint("Horizontal", 50))
sketch2.addConstraint(Sketcher.Constraint("Vertical", 51))
sketch2.addConstraint(Sketcher.Constraint("Horizontal", 52))
sketch2.addConstraint(Sketcher.Constraint("Vertical", 53))
sketch2.addConstraint(Sketcher.Constraint("Horizontal", 54))
sketch2.addConstraint(Sketcher.Constraint("Vertical", 55))
sketch2.addConstraint(Sketcher.Constraint("Horizontal", 56))
sketch2.addConstraint(Sketcher.Constraint("Vertical", 57))
sketch2.addConstraint(Sketcher.Constraint("Horizontal", 58))
sketch2.addConstraint(Sketcher.Constraint("Vertical", 59))
sketch2.addConstraint(Sketcher.Constraint("Equal", 1, 3))
sketch2.addConstraint(Sketcher.Constraint("Equal", 3, 7))
sketch2.addConstraint(Sketcher.Constraint("Equal", 7, 9))
sketch2.addConstraint(Sketcher.Constraint("Equal", 9, 27))
sketch2.addConstraint(Sketcher.Constraint("Equal", 27, 29))
sketch2.addConstraint(Sketcher.Constraint("Equal", 29, 33))
sketch2.addConstraint(Sketcher.Constraint("Equal", 33, 35))
sketch2.addConstraint(Sketcher.Constraint("Symmetric", 3, 3, 7, 3, -1))
sketch2.addConstraint(Sketcher.Constraint("Symmetric", 29, 3, 33, 3, -1))
sketch2.addConstraint(Sketcher.Constraint("Symmetric", 25, 2, 36, 2, -1))
sketch2.addConstraint(Sketcher.Constraint("Symmetric", 23, 2, 38, 2, -1))
sketch2.addConstraint(Sketcher.Constraint("Symmetric", 21, 2, 40, 2, -1))
sketch2.addConstraint(Sketcher.Constraint("Symmetric", 19, 2, 42, 2, -1))
sketch2.addConstraint(Sketcher.Constraint("Symmetric", 17, 2, 44, 2, -1))
sketch2.addConstraint(Sketcher.Constraint("Symmetric", 15, 2, 46, 2, -1))
sketch2.addConstraint(Sketcher.Constraint("Symmetric", 13, 2, 48, 2, -1))
sketch2.addConstraint(Sketcher.Constraint("Symmetric", 11, 2, 50, 2, -1))
sketch2.addConstraint(Sketcher.Constraint("Symmetric", 53, 2, 56, 2, -1))
sketch2.addConstraint(Sketcher.Constraint("Symmetric", 55, 2, 58, 2, -1))
sketch2.addConstraint(Sketcher.Constraint("Horizontal", 9, 3, 27, 3))
sketch2.addConstraint(Sketcher.Constraint("Horizontal", 7, 3, 29, 3))
sketch2.addConstraint(Sketcher.Constraint("Horizontal", 1, 3, 35, 3))
sketch2.addConstraint(Sketcher.Constraint("Horizontal", 14, 2, 17, 2))
sketch2.addConstraint(Sketcher.Constraint("Horizontal", 12, 2, 23, 2))
sketch2.addConstraint(Sketcher.Constraint("Horizontal", 20, 2, 52, 2))
sketch2.addConstraint(Sketcher.Constraint("Horizontal", 22, 2, 53, 2))
sketch2.addConstraint(Sketcher.Constraint("Vertical", 5, 2, 10, 2))
sketch2.addConstraint(Sketcher.Constraint("Vertical", 8, 2, 12, 2))
sketch2.addConstraint(Sketcher.Constraint("Vertical", 19, 2, 22, 2))
sketch2.addConstraint(Sketcher.Constraint("Vertical", 17, 2, 24, 2))
sketch2.addConstraint(Sketcher.Constraint("Vertical", 23, 2, 27, 2))
sketch2.addConstraint(Sketcher.Constraint("Vertical", 25, 2, 30, 2))
sketch2.addConstraint(Sketcher.Constraint("Equal", 12, 18))
sketch2.addConstraint(Sketcher.Constraint("Equal", 17, 19))
sketch2.addConstraint(Sketcher.Constraint("Equal", 19, 23))
sketch2.addConstraint(Sketcher.Constraint("DistanceX", 12, 2, 12, 1, 6.0))
sketch2.addConstraint(Sketcher.Constraint("DistanceY", 5, 2, 5, 1, 70.0))
sketch2.addConstraint(Sketcher.Constraint("DistanceY", 21, 1, 21, 2, 3.0))
sketch2.addConstraint(Sketcher.Constraint("DistanceY", 13, 2, 13, 1, 10.5))
sketch2.addConstraint(Sketcher.Constraint("DistanceY", -1, 1, 0, 2, 45.0))
sketch2.addConstraint(Sketcher.Constraint("DistanceY", 19, 2, -1, 1, 76.0))
sketch2.addConstraint(Sketcher.Constraint("DistanceX", 52, 2, 52, 1, 12.45))
sketch2.addConstraint(Sketcher.Constraint("DistanceX", 20, 2, 20, 1, 12.225))
sketch2.addConstraint(Sketcher.Constraint("Radius", 1, 0.660845))
sketch2.addConstraint(Sketcher.Constraint("DistanceX", 14, 1, 14, 2, 6.015177))
sketch2.addConstraint(Sketcher.Constraint("DistanceX", 16, 1, 16, 2, 25.384823))
sketch2.addConstraint(Sketcher.Constraint("DistanceX", -1, 1, 2, 2, 28.425482))
sketch2.addConstraint(Sketcher.Constraint("DistanceX", -1, 1, 52, 2, 34.650482))
pad2 = body2.newObject("PartDesign::Pad", "Pad001")
pad2.Profile = sketch2
pad2.Length = 3
body3 = doc.addObject("PartDesign::Body", "Body002")

sketch3 = body3.newObject("Sketcher::SketchObject", "Sketch002")
sketch3.AttachmentSupport = (doc.getObject("XY_Plane002"), [""])
sketch3.MapMode = "FlatFace"
add_polygon(sketch3, [(-75, 45), (-75, -45), (-81, -45), (-81, -55), (-75, -55), (-75, -84), (-70, -84), (-70, -73), (-65, -73), (-65, -84), (-59, -84), (-59, -73), (-54, -73), (-54, -84), (-49, -84), (-49, -55), (-43, -55), (-43, -45), (-49, -45), (-49, 45), (-43, 45), (-43, 55), (-49, 55), (-49, 84), (-54, 84), (-54, 73), (-59, 73), (-59, 84), (-65, 84), (-65, 73), (-70, 73), (-70, 84), (-75, 84), (-75, 55), (-81, 55), (-81, 45)])
sketch3.addConstraint(Sketcher.Constraint("Vertical", 0))
sketch3.addConstraint(Sketcher.Constraint("Horizontal", 1))
sketch3.addConstraint(Sketcher.Constraint("Vertical", 2))
sketch3.addConstraint(Sketcher.Constraint("Horizontal", 3))
sketch3.addConstraint(Sketcher.Constraint("Vertical", 4))
sketch3.addConstraint(Sketcher.Constraint("Horizontal", 5))
sketch3.addConstraint(Sketcher.Constraint("Vertical", 6))
sketch3.addConstraint(Sketcher.Constraint("Horizontal", 7))
sketch3.addConstraint(Sketcher.Constraint("Vertical", 8))
sketch3.addConstraint(Sketcher.Constraint("Horizontal", 9))
sketch3.addConstraint(Sketcher.Constraint("Vertical", 10))
sketch3.addConstraint(Sketcher.Constraint("Horizontal", 11))
sketch3.addConstraint(Sketcher.Constraint("Vertical", 12))
sketch3.addConstraint(Sketcher.Constraint("Horizontal", 13))
sketch3.addConstraint(Sketcher.Constraint("Vertical", 14))
sketch3.addConstraint(Sketcher.Constraint("Horizontal", 15))
sketch3.addConstraint(Sketcher.Constraint("Vertical", 16))
sketch3.addConstraint(Sketcher.Constraint("Horizontal", 17))
sketch3.addConstraint(Sketcher.Constraint("Vertical", 18))
sketch3.addConstraint(Sketcher.Constraint("Horizontal", 19))
sketch3.addConstraint(Sketcher.Constraint("Vertical", 20))
sketch3.addConstraint(Sketcher.Constraint("Horizontal", 21))
sketch3.addConstraint(Sketcher.Constraint("Vertical", 22))
sketch3.addConstraint(Sketcher.Constraint("Horizontal", 23))
sketch3.addConstraint(Sketcher.Constraint("Vertical", 24))
sketch3.addConstraint(Sketcher.Constraint("Horizontal", 25))
sketch3.addConstraint(Sketcher.Constraint("Vertical", 26))
sketch3.addConstraint(Sketcher.Constraint("Horizontal", 27))
sketch3.addConstraint(Sketcher.Constraint("Vertical", 28))
sketch3.addConstraint(Sketcher.Constraint("Horizontal", 29))
sketch3.addConstraint(Sketcher.Constraint("Vertical", 30))
sketch3.addConstraint(Sketcher.Constraint("Horizontal", 31))
sketch3.addConstraint(Sketcher.Constraint("Vertical", 32))
sketch3.addConstraint(Sketcher.Constraint("Horizontal", 33))
sketch3.addConstraint(Sketcher.Constraint("Vertical", 34))
sketch3.addConstraint(Sketcher.Constraint("Horizontal", 35))
sketch3.addConstraint(Sketcher.Constraint("Symmetric", 16, 2, 19, 2, -1))
sketch3.addConstraint(Sketcher.Constraint("Symmetric", 14, 2, 21, 2, -1))
sketch3.addConstraint(Sketcher.Constraint("Symmetric", 12, 2, 23, 2, -1))
sketch3.addConstraint(Sketcher.Constraint("Symmetric", 10, 2, 25, 2, -1))
sketch3.addConstraint(Sketcher.Constraint("Symmetric", 8, 2, 27, 2, -1))
sketch3.addConstraint(Sketcher.Constraint("Symmetric", 6, 2, 29, 2, -1))
sketch3.addConstraint(Sketcher.Constraint("Symmetric", 4, 2, 31, 2, -1))
sketch3.addConstraint(Sketcher.Constraint("Symmetric", 2, 2, 33, 2, -1))
sketch3.addConstraint(Sketcher.Constraint("Horizontal", 5, 2, 8, 2))
sketch3.addConstraint(Sketcher.Constraint("Horizontal", 7, 2, 10, 2))
sketch3.addConstraint(Sketcher.Constraint("Horizontal", 9, 2, 12, 2))
sketch3.addConstraint(Sketcher.Constraint("Horizontal", 3, 2, 14, 2))
sketch3.addConstraint(Sketcher.Constraint("Horizontal", 1, 2, 16, 2))
sketch3.addConstraint(Sketcher.Constraint("Horizontal", 19, 2, 34, 2))
sketch3.addConstraint(Sketcher.Constraint("Vertical", 0, 2, 3, 2))
sketch3.addConstraint(Sketcher.Constraint("Vertical", 14, 2, 17, 2))
sketch3.addConstraint(Sketcher.Constraint("Equal", 5, 7))
sketch3.addConstraint(Sketcher.Constraint("Equal", 7, 11))
sketch3.addConstraint(Sketcher.Constraint("Equal", 11, 13))
sketch3.addConstraint(Sketcher.Constraint("Equal", 3, 15))
sketch3.addConstraint(Sketcher.Constraint("DistanceX", 1, 2, 1, 1, 6.0))
sketch3.addConstraint(Sketcher.Constraint("DistanceX", 5, 1, 5, 2, 5.0))
sketch3.addConstraint(Sketcher.Constraint("DistanceY", 0, 2, 0, 1, 90.0))
sketch3.addConstraint(Sketcher.Constraint("DistanceY", 2, 2, 2, 1, 10.0))
sketch3.addConstraint(Sketcher.Constraint("DistanceX", 9, 1, 9, 2, 5.4))
sketch3.addConstraint(Sketcher.Constraint("DistanceY", 4, 2, 4, 1, 28.5))
sketch3.addConstraint(Sketcher.Constraint("DistanceY", 6, 1, 6, 2, 10.5))
sketch3.addConstraint(Sketcher.Constraint("DistanceX", 0, 2, -1, 1, 74.822811))
pad3 = body3.newObject("PartDesign::Pad", "Pad002")
pad3.Profile = sketch3
pad3.Length = 3

doc.recompute()
